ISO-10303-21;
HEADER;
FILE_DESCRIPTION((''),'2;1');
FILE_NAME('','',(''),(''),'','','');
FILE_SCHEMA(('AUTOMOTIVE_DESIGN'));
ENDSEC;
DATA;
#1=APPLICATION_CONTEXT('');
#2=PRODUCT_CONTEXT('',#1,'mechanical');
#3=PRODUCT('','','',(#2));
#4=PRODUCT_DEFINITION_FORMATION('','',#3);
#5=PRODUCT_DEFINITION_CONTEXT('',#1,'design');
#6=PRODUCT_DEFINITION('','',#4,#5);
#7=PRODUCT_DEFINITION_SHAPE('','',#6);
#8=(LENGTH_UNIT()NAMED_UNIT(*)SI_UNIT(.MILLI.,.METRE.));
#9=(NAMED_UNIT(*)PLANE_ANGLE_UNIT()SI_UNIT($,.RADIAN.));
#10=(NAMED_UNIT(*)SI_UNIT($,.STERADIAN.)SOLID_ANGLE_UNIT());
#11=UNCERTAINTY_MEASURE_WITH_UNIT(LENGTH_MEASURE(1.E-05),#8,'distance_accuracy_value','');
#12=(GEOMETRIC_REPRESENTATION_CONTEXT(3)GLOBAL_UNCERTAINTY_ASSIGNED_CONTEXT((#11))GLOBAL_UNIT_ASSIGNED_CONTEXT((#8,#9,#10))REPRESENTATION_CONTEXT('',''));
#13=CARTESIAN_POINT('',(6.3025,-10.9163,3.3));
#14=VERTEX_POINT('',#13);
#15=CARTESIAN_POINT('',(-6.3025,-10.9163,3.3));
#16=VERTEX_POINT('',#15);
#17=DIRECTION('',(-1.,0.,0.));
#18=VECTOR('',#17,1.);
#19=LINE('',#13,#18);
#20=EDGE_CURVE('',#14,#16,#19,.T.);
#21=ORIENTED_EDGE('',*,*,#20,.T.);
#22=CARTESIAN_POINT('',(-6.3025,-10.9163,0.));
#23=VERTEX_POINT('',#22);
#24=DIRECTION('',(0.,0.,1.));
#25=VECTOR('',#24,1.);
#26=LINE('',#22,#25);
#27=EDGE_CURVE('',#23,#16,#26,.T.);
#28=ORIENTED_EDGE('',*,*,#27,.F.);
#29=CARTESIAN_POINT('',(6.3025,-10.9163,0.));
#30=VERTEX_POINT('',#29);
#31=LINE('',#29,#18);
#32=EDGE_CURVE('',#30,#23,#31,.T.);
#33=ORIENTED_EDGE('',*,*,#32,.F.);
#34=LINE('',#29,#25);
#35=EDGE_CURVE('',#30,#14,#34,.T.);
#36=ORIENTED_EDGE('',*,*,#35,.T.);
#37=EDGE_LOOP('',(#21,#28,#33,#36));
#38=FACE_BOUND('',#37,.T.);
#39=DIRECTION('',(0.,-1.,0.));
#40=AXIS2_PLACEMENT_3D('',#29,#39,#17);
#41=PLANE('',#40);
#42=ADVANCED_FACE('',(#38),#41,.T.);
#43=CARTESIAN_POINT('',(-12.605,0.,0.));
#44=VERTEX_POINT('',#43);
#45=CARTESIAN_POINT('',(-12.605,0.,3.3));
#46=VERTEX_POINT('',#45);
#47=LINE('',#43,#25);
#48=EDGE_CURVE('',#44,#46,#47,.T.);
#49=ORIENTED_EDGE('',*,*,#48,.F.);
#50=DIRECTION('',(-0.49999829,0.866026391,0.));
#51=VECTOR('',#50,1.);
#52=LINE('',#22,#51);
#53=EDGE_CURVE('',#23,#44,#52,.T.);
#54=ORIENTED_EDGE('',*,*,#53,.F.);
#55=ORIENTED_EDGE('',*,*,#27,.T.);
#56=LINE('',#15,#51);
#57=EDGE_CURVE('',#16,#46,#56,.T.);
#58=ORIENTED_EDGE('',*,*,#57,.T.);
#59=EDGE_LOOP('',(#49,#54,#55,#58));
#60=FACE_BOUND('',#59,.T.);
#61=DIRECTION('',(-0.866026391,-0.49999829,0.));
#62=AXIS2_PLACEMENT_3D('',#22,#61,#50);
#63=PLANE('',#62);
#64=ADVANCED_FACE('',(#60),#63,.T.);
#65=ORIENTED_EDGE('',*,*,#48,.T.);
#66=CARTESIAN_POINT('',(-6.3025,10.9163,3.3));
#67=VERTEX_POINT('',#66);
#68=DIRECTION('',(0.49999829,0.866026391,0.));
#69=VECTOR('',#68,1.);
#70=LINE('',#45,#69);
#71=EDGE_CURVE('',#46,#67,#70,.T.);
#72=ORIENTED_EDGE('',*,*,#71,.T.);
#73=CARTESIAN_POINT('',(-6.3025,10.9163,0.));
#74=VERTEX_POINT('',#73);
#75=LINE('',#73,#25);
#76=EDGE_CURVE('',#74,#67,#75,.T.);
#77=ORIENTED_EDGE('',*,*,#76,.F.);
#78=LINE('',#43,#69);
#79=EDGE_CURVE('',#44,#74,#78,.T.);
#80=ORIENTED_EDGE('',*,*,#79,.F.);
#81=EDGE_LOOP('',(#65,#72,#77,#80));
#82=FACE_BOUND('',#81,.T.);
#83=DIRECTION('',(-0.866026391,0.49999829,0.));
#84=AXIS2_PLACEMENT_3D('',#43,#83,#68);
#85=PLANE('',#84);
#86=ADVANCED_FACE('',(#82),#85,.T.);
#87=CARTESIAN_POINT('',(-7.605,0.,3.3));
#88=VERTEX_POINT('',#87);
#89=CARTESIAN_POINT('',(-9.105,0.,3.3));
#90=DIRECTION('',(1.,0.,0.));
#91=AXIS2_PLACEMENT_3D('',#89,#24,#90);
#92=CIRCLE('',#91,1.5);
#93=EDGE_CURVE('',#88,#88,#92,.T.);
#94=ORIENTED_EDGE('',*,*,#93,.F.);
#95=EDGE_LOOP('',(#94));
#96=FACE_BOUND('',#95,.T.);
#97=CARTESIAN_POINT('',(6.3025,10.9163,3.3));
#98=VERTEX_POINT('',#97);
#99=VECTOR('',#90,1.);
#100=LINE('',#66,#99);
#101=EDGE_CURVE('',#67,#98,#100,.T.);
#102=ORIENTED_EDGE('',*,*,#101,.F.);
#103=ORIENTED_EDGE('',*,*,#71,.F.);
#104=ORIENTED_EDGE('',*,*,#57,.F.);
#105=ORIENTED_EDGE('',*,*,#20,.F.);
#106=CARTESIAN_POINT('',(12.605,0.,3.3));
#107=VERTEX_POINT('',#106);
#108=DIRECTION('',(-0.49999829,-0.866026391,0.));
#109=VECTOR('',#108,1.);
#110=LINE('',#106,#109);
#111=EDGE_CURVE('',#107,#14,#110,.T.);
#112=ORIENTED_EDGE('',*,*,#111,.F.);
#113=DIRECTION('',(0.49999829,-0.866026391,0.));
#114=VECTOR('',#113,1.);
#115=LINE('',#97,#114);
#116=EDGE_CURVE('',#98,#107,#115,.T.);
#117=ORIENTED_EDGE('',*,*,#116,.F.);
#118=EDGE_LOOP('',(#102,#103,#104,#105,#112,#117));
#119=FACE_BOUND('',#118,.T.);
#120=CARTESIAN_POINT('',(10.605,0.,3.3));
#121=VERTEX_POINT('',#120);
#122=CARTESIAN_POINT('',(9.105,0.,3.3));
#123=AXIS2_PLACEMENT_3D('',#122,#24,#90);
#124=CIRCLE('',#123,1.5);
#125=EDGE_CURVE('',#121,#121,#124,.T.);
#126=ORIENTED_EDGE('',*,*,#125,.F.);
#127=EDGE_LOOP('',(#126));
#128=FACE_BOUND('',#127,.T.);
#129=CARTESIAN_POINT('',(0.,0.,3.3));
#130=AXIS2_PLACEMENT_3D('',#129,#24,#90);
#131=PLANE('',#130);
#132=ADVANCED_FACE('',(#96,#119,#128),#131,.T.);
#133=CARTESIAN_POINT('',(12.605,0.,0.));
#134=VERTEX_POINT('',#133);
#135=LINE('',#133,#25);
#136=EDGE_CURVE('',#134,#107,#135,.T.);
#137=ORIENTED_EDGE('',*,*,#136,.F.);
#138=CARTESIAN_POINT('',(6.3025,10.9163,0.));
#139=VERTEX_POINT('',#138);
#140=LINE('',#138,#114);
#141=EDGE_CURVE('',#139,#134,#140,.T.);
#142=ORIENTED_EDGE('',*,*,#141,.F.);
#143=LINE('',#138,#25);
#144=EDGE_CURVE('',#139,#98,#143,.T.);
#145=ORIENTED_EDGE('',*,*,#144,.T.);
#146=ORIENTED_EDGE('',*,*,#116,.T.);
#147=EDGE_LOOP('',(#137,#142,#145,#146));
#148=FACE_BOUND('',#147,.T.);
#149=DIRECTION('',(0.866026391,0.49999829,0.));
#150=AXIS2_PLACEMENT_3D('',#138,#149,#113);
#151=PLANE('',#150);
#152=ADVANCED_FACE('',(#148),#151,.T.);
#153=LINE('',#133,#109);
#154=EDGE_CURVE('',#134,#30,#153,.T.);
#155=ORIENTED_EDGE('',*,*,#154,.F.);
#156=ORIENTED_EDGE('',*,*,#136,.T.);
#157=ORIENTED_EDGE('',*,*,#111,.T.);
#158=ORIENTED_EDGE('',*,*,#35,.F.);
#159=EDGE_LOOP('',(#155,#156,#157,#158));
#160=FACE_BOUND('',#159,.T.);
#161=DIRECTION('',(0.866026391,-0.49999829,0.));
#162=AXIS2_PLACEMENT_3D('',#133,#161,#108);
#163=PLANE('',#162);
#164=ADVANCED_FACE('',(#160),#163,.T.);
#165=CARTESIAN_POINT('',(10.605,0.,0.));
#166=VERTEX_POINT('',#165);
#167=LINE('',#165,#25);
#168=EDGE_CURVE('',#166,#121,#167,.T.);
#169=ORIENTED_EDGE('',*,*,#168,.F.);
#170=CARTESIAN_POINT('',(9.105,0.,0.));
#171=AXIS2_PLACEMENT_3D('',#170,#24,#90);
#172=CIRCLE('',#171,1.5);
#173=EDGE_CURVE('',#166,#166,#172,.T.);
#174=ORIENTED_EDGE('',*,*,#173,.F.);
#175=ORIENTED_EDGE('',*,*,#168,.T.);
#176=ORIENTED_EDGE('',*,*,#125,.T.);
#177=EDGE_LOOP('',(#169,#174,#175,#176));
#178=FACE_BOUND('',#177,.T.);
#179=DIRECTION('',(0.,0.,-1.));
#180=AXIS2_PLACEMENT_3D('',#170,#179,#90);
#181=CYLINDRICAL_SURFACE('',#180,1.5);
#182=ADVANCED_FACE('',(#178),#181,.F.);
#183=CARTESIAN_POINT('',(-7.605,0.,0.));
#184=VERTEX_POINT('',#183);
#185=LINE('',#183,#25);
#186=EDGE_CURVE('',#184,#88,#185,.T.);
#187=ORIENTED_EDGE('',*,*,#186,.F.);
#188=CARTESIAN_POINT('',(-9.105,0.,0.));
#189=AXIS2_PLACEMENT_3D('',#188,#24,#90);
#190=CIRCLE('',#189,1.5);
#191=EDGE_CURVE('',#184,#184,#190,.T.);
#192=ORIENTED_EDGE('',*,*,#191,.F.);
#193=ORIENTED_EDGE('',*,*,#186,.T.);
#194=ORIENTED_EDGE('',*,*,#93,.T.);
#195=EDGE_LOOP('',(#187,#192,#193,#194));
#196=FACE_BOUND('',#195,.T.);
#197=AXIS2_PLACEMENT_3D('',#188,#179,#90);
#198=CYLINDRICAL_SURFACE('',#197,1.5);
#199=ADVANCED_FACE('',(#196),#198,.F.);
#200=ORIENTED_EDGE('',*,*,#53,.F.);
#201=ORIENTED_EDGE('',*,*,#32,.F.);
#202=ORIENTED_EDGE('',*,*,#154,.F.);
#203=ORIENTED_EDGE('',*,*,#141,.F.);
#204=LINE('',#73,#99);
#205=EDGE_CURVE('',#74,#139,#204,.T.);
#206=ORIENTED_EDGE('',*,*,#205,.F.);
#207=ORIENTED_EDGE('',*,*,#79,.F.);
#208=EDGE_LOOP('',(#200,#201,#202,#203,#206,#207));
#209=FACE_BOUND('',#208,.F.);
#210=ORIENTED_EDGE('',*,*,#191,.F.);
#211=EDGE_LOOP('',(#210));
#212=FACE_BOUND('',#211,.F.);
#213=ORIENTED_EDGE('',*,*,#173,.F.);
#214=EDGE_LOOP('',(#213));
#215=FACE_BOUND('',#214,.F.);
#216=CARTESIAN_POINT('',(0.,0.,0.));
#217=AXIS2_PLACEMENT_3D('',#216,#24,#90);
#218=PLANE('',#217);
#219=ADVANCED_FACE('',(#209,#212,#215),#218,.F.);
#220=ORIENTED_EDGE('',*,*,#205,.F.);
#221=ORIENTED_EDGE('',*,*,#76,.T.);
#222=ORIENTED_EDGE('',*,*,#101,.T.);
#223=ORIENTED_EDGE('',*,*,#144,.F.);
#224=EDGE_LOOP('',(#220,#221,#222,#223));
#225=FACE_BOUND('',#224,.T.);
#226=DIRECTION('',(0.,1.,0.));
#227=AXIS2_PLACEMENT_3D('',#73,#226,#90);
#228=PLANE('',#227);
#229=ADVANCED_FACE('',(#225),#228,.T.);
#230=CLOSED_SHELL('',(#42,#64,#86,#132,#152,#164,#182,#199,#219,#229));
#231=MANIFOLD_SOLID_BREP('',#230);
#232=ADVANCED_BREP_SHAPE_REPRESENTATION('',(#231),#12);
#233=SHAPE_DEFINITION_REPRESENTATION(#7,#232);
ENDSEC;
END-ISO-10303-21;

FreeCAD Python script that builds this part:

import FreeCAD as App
import Part
import Sketcher
Q = App.Units.Quantity

doc = App.newDocument("Part")
params = doc.addObject("Spreadsheet::Sheet", "Params")
for row, (alias, value) in enumerate([
    ("sketch1_diameter", "3 mm"),
    ("pad1_length", "3.3 mm"),
], start=1):
    params.set(f"A{row}", alias)
    params.set(f"B{row}", "=" + value)
    params.setAlias(f"B{row}", alias)

body = doc.addObject("PartDesign::Body", "Body")

sketch1 = body.newObject("Sketcher::SketchObject", "Sketch")
sketch1.AttachmentSupport = (doc.getObject("XY_Plane"), [""])
sketch1.MapMode = "FlatFace"
sketch1.addGeometry(Part.LineSegment(App.Vector(12.6, 0, 0), App.Vector(6.3, 10.9, 0)), False)
sketch1.addGeometry(Part.LineSegment(App.Vector(6.3, 10.9, 0), App.Vector(-6.3, 10.9, 0)), False)
sketch1.addGeometry(Part.LineSegment(App.Vector(-6.3, 10.9, 0), App.Vector(-12.6, 0, 0)), False)
sketch1.addGeometry(Part.LineSegment(App.Vector(-12.6, 0, 0), App.Vector(-6.3, -10.9, 0)), False)
sketch1.addGeometry(Part.LineSegment(App.Vector(-6.3, -10.9, 0), App.Vector(6.3, -10.9, 0)), False)
sketch1.addGeometry(Part.LineSegment(App.Vector(6.3, -10.9, 0), App.Vector(12.6, 0, 0)), False)
sketch1.addGeometry(Part.Circle(App.Vector(-9.1, 0, 0), App.Vector(0, 0, 1), 1.5), False)
sketch1.addGeometry(Part.Circle(App.Vector(9.1, 0, 0), App.Vector(0, 0, 1), 1.5), False)
sketch1.addConstraint(Sketcher.Constraint("Coincident", 0, 2, 1, 1))
sketch1.addConstraint(Sketcher.Constraint("Coincident", 1, 2, 2, 1))
sketch1.addConstraint(Sketcher.Constraint("Coincident", 2, 2, 3, 1))
sketch1.addConstraint(Sketcher.Constraint("Coincident", 3, 2, 4, 1))
sketch1.addConstraint(Sketcher.Constraint("Coincident", 4, 2, 5, 1))
sketch1.addConstraint(Sketcher.Constraint("Coincident", 5, 2, 0, 1))
sketch1.addConstraint(Sketcher.Constraint("Horizontal", 1))
sketch1.addConstraint(Sketcher.Constraint("Horizontal", 4))
sketch1.addConstraint(Sketcher.Constraint("Equal", 6, 7))
sketch1.addConstraint(Sketcher.Constraint("Symmetric", 6, 3, 7, 3, -1, 1))
sketch1.addConstraint(Sketcher.Constraint("Symmetric", 0, 2, 3, 2, -1, 1))
sketch1.addConstraint(Sketcher.Constraint("Symmetric", 2, 2, 5, 2, -1, 1))
sketch1.addConstraint(Sketcher.Constraint("PointOnObject", 6, 3, -1))
sketch1.addConstraint(Sketcher.Constraint("PointOnObject", 2, 2, -1))
sketch1.addConstraint(Sketcher.Constraint("Parallel", 2, 5))
sketch1.addConstraint(Sketcher.Constraint("Vertical", 1, 2, 3, 2))
sketch1.addConstraint(Sketcher.Constraint("Diameter", 6, 3.0))
sketch1.addConstraint(Sketcher.Constraint("DistanceX", 2, 2, 6, 3, 3.5))
sketch1.addConstraint(Sketcher.Constraint("Angle", 0, Q("120 deg")))
sketch1.addConstraint(Sketcher.Constraint("DistanceY", -1, 1, 0, 2, 10.9163))
sketch1.addConstraint(Sketcher.Constraint("DistanceX", 1, 2, 1, 1, 12.605))
sketch1.setExpression("Constraints[16]", "Params.sketch1_diameter")
pad1 = body.newObject("PartDesign::Pad", "Pad")
pad1.Profile = sketch1
pad1.setExpression("Length", "Params.pad1_length")

doc.recompute()
